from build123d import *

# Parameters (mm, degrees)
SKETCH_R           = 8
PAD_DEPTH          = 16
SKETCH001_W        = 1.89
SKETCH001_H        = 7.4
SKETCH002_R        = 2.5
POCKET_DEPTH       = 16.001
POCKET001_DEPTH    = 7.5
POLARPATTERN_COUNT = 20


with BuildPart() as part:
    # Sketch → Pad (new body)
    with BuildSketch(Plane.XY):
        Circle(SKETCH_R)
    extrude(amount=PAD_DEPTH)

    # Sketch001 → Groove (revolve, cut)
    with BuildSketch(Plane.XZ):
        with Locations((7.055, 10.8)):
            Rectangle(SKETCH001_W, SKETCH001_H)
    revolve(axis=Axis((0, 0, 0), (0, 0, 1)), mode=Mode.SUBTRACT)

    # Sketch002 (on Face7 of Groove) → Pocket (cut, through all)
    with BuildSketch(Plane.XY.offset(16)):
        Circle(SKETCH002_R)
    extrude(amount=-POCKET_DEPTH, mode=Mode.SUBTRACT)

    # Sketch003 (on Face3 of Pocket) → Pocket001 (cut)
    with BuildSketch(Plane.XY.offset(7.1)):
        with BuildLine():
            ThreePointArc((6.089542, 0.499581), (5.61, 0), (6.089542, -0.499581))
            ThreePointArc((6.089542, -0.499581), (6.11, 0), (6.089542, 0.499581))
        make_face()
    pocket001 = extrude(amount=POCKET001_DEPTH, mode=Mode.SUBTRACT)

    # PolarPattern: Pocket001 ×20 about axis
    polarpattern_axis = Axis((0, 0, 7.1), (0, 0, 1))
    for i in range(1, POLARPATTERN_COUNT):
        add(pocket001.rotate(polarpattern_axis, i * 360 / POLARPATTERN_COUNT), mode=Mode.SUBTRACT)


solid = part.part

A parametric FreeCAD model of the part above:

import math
import FreeCAD as App
import Part
import Sketcher
Q = App.Units.Quantity


def add_polygon(sketch, points):
    """Adds a closed chain of lines whose ends are joined by coincident constraints."""
    first, n = sketch.GeometryCount, len(points)
    for a, b in zip(points, points[1:] + points[:1]):
        sketch.addGeometry(Part.LineSegment(App.Vector(*a, 0), App.Vector(*b, 0)), False)
    for i in range(n):
        sketch.addConstraint(Sketcher.Constraint("Coincident", first + i, 2, first + (i + 1) % n, 1))

doc = App.newDocument("Part")
params = doc.addObject("Spreadsheet::Sheet", "Params")
for row, (alias, value) in enumerate([
    ("sketch1_diameter", "16 mm"),
    ("pad1_length", "16 mm"),
    ("sketch2_height", "7.4 mm"),
    ("sketch2_width", "1.89 mm"),
    ("groove_angle", "360 deg"),
    ("sketch3_diameter", "5 mm"),
    ("sketch4_radius", "0.5 mm"),
    ("pocket2_length", "7.5 mm"),
], start=1):
    params.set(f"A{row}", alias)
    params.set(f"B{row}", "=" + value)
    params.setAlias(f"B{row}", alias)

body = doc.addObject("PartDesign::Body", "Body")

# Sketch on XY plane
sketch1 = doc.addObject("Sketcher::SketchObject", "Sketch")
body.addObject(sketch1)
sketch1.AttachmentSupport = (doc.XY_Plane, [""])
sketch1.MapMode = "FlatFace"
sketch1.addGeometry(Part.Circle(App.Vector(0, 0, 0), App.Vector(0, 0, 1), 8), False)
sketch1.addConstraint(Sketcher.Constraint("Coincident", 0, 3, -1, 1))
sketch1.addConstraint(Sketcher.Constraint("Diameter", 0, Q("16 mm")))
sketch1.setExpression("Constraints[1]", "Params.sketch1_diameter")
pad1 = doc.addObject("PartDesign::Pad", "Pad")
body.addObject(pad1)
pad1.Profile = sketch1
pad1.setExpression("Length", "Params.pad1_length")

# Sketch on XZ plane
sketch2 = doc.addObject("Sketcher::SketchObject", "Sketch001")
body.addObject(sketch2)
sketch2.AttachmentSupport = (doc.XZ_Plane, [""])
sketch2.MapMode = "FlatFace"
add_polygon(sketch2, [(6.1, 14.5), (6.1, 7.1), (8, 7.1), (8, 14.5)])  # lines 0-3
sketch2.addConstraint(Sketcher.Constraint("Vertical", 0))
sketch2.addConstraint(Sketcher.Constraint("Horizontal", 1))
sketch2.addConstraint(Sketcher.Constraint("Vertical", 2))
sketch2.addConstraint(Sketcher.Constraint("Horizontal", 3))
sketch2.addConstraint(Sketcher.Constraint("DistanceY", 0, 2, 0, 1, Q("7.4 mm")))
sketch2.addConstraint(Sketcher.Constraint("DistanceX", -1, 1, 1, 2, Q("8 mm")))
sketch2.addConstraint(Sketcher.Constraint("DistanceX", 1, 1, 1, 2, Q("1.89 mm")))
sketch2.addConstraint(Sketcher.Constraint("DistanceY", -1, 1, 0, 2, Q("7.1 mm")))
sketch2.setExpression("Constraints[8]", "Params.sketch2_height")
sketch2.setExpression("Constraints[10]", "Params.sketch2_width")
groove = doc.addObject("PartDesign::Groove", "Groove")
body.addObject(groove)
groove.Profile = sketch2
groove.ReferenceAxis = (sketch2, ["V_Axis"])
groove.setExpression("Angle", "Params.groove_angle")

# Sketch on XY plane
sketch3 = doc.addObject("Sketcher::SketchObject", "Sketch002")
body.addObject(sketch3)
sketch3.AttachmentSupport = (doc.XY_Plane, [""])
sketch3.MapMode = "FlatFace"
sketch3.AttachmentOffset = App.Placement(App.Vector(0, 0, 16), App.Rotation())
sketch3.addGeometry(Part.Circle(App.Vector(0, 0, 0), App.Vector(0, 0, 1), 2.5), False)
sketch3.addConstraint(Sketcher.Constraint("Coincident", 0, 3, -1, 1))
sketch3.addConstraint(Sketcher.Constraint("Diameter", 0, Q("5 mm")))
sketch3.setExpression("Constraints[1]", "Params.sketch3_diameter")
pocket1 = doc.addObject("PartDesign::Pocket", "Pocket")
body.addObject(pocket1)
pocket1.Profile = sketch3
pocket1.Type = "ThroughAll"

# Sketch on XY plane
sketch4 = doc.addObject("Sketcher::SketchObject", "Sketch003")
body.addObject(sketch4)
sketch4.AttachmentSupport = (doc.XY_Plane, [""])
sketch4.MapMode = "FlatFace"
sketch4.AttachmentOffset = App.Placement(App.Vector(0, 0, 7.1), App.Rotation())
sketch4.addGeometry(Part.ArcOfCircle(Part.Circle(App.Vector(6.11, 0, 0), App.Vector(0, 0, 1), 0.5), math.radians(92), math.radians(268)), False)
sketch4.addGeometry(Part.ArcOfCircle(Part.Circle(App.Vector(0, 0, 0), App.Vector(0, 0, 1), 6.11), math.radians(-4.69), math.radians(4.69)), False)
sketch4.addConstraint(Sketcher.Constraint("Coincident", 0, 1, 1, 2))
sketch4.addConstraint(Sketcher.Constraint("Coincident", 1, 1, 0, 2))
sketch4.addConstraint(Sketcher.Constraint("Symmetric", 0, 1, 1, 1, -1))
sketch4.addConstraint(Sketcher.Constraint("Radius", 0, Q("0.5 mm")))
sketch4.addConstraint(Sketcher.Constraint("DistanceX", -1, 1, 0, 3, Q("6.11 mm")))
sketch4.addConstraint(Sketcher.Constraint("Radius", 1, Q("6.110072 mm")))
sketch4.addConstraint(Sketcher.Constraint("DistanceX", -1, 1, 0, 1, Q("6.089542 mm")))
sketch4.setExpression("Constraints[3]", "Params.sketch4_radius")
pocket2 = doc.addObject("PartDesign::Pocket", "Pocket001")
body.addObject(pocket2)
pocket2.Profile = sketch4
pocket2.setExpression("Length", "Params.pocket2_length")
pocket2.Reversed = True
doc.recompute()

polarpattern = doc.addObject("PartDesign::PolarPattern", "PolarPattern")
body.addObject(polarpattern)
polarpattern.Originals = [pocket2]
polarpattern.Axis = (doc.Z_Axis, [""])
polarpattern.Angle = 360
polarpattern.Occurrences = 20
body.Tip = polarpattern

doc.recompute()
